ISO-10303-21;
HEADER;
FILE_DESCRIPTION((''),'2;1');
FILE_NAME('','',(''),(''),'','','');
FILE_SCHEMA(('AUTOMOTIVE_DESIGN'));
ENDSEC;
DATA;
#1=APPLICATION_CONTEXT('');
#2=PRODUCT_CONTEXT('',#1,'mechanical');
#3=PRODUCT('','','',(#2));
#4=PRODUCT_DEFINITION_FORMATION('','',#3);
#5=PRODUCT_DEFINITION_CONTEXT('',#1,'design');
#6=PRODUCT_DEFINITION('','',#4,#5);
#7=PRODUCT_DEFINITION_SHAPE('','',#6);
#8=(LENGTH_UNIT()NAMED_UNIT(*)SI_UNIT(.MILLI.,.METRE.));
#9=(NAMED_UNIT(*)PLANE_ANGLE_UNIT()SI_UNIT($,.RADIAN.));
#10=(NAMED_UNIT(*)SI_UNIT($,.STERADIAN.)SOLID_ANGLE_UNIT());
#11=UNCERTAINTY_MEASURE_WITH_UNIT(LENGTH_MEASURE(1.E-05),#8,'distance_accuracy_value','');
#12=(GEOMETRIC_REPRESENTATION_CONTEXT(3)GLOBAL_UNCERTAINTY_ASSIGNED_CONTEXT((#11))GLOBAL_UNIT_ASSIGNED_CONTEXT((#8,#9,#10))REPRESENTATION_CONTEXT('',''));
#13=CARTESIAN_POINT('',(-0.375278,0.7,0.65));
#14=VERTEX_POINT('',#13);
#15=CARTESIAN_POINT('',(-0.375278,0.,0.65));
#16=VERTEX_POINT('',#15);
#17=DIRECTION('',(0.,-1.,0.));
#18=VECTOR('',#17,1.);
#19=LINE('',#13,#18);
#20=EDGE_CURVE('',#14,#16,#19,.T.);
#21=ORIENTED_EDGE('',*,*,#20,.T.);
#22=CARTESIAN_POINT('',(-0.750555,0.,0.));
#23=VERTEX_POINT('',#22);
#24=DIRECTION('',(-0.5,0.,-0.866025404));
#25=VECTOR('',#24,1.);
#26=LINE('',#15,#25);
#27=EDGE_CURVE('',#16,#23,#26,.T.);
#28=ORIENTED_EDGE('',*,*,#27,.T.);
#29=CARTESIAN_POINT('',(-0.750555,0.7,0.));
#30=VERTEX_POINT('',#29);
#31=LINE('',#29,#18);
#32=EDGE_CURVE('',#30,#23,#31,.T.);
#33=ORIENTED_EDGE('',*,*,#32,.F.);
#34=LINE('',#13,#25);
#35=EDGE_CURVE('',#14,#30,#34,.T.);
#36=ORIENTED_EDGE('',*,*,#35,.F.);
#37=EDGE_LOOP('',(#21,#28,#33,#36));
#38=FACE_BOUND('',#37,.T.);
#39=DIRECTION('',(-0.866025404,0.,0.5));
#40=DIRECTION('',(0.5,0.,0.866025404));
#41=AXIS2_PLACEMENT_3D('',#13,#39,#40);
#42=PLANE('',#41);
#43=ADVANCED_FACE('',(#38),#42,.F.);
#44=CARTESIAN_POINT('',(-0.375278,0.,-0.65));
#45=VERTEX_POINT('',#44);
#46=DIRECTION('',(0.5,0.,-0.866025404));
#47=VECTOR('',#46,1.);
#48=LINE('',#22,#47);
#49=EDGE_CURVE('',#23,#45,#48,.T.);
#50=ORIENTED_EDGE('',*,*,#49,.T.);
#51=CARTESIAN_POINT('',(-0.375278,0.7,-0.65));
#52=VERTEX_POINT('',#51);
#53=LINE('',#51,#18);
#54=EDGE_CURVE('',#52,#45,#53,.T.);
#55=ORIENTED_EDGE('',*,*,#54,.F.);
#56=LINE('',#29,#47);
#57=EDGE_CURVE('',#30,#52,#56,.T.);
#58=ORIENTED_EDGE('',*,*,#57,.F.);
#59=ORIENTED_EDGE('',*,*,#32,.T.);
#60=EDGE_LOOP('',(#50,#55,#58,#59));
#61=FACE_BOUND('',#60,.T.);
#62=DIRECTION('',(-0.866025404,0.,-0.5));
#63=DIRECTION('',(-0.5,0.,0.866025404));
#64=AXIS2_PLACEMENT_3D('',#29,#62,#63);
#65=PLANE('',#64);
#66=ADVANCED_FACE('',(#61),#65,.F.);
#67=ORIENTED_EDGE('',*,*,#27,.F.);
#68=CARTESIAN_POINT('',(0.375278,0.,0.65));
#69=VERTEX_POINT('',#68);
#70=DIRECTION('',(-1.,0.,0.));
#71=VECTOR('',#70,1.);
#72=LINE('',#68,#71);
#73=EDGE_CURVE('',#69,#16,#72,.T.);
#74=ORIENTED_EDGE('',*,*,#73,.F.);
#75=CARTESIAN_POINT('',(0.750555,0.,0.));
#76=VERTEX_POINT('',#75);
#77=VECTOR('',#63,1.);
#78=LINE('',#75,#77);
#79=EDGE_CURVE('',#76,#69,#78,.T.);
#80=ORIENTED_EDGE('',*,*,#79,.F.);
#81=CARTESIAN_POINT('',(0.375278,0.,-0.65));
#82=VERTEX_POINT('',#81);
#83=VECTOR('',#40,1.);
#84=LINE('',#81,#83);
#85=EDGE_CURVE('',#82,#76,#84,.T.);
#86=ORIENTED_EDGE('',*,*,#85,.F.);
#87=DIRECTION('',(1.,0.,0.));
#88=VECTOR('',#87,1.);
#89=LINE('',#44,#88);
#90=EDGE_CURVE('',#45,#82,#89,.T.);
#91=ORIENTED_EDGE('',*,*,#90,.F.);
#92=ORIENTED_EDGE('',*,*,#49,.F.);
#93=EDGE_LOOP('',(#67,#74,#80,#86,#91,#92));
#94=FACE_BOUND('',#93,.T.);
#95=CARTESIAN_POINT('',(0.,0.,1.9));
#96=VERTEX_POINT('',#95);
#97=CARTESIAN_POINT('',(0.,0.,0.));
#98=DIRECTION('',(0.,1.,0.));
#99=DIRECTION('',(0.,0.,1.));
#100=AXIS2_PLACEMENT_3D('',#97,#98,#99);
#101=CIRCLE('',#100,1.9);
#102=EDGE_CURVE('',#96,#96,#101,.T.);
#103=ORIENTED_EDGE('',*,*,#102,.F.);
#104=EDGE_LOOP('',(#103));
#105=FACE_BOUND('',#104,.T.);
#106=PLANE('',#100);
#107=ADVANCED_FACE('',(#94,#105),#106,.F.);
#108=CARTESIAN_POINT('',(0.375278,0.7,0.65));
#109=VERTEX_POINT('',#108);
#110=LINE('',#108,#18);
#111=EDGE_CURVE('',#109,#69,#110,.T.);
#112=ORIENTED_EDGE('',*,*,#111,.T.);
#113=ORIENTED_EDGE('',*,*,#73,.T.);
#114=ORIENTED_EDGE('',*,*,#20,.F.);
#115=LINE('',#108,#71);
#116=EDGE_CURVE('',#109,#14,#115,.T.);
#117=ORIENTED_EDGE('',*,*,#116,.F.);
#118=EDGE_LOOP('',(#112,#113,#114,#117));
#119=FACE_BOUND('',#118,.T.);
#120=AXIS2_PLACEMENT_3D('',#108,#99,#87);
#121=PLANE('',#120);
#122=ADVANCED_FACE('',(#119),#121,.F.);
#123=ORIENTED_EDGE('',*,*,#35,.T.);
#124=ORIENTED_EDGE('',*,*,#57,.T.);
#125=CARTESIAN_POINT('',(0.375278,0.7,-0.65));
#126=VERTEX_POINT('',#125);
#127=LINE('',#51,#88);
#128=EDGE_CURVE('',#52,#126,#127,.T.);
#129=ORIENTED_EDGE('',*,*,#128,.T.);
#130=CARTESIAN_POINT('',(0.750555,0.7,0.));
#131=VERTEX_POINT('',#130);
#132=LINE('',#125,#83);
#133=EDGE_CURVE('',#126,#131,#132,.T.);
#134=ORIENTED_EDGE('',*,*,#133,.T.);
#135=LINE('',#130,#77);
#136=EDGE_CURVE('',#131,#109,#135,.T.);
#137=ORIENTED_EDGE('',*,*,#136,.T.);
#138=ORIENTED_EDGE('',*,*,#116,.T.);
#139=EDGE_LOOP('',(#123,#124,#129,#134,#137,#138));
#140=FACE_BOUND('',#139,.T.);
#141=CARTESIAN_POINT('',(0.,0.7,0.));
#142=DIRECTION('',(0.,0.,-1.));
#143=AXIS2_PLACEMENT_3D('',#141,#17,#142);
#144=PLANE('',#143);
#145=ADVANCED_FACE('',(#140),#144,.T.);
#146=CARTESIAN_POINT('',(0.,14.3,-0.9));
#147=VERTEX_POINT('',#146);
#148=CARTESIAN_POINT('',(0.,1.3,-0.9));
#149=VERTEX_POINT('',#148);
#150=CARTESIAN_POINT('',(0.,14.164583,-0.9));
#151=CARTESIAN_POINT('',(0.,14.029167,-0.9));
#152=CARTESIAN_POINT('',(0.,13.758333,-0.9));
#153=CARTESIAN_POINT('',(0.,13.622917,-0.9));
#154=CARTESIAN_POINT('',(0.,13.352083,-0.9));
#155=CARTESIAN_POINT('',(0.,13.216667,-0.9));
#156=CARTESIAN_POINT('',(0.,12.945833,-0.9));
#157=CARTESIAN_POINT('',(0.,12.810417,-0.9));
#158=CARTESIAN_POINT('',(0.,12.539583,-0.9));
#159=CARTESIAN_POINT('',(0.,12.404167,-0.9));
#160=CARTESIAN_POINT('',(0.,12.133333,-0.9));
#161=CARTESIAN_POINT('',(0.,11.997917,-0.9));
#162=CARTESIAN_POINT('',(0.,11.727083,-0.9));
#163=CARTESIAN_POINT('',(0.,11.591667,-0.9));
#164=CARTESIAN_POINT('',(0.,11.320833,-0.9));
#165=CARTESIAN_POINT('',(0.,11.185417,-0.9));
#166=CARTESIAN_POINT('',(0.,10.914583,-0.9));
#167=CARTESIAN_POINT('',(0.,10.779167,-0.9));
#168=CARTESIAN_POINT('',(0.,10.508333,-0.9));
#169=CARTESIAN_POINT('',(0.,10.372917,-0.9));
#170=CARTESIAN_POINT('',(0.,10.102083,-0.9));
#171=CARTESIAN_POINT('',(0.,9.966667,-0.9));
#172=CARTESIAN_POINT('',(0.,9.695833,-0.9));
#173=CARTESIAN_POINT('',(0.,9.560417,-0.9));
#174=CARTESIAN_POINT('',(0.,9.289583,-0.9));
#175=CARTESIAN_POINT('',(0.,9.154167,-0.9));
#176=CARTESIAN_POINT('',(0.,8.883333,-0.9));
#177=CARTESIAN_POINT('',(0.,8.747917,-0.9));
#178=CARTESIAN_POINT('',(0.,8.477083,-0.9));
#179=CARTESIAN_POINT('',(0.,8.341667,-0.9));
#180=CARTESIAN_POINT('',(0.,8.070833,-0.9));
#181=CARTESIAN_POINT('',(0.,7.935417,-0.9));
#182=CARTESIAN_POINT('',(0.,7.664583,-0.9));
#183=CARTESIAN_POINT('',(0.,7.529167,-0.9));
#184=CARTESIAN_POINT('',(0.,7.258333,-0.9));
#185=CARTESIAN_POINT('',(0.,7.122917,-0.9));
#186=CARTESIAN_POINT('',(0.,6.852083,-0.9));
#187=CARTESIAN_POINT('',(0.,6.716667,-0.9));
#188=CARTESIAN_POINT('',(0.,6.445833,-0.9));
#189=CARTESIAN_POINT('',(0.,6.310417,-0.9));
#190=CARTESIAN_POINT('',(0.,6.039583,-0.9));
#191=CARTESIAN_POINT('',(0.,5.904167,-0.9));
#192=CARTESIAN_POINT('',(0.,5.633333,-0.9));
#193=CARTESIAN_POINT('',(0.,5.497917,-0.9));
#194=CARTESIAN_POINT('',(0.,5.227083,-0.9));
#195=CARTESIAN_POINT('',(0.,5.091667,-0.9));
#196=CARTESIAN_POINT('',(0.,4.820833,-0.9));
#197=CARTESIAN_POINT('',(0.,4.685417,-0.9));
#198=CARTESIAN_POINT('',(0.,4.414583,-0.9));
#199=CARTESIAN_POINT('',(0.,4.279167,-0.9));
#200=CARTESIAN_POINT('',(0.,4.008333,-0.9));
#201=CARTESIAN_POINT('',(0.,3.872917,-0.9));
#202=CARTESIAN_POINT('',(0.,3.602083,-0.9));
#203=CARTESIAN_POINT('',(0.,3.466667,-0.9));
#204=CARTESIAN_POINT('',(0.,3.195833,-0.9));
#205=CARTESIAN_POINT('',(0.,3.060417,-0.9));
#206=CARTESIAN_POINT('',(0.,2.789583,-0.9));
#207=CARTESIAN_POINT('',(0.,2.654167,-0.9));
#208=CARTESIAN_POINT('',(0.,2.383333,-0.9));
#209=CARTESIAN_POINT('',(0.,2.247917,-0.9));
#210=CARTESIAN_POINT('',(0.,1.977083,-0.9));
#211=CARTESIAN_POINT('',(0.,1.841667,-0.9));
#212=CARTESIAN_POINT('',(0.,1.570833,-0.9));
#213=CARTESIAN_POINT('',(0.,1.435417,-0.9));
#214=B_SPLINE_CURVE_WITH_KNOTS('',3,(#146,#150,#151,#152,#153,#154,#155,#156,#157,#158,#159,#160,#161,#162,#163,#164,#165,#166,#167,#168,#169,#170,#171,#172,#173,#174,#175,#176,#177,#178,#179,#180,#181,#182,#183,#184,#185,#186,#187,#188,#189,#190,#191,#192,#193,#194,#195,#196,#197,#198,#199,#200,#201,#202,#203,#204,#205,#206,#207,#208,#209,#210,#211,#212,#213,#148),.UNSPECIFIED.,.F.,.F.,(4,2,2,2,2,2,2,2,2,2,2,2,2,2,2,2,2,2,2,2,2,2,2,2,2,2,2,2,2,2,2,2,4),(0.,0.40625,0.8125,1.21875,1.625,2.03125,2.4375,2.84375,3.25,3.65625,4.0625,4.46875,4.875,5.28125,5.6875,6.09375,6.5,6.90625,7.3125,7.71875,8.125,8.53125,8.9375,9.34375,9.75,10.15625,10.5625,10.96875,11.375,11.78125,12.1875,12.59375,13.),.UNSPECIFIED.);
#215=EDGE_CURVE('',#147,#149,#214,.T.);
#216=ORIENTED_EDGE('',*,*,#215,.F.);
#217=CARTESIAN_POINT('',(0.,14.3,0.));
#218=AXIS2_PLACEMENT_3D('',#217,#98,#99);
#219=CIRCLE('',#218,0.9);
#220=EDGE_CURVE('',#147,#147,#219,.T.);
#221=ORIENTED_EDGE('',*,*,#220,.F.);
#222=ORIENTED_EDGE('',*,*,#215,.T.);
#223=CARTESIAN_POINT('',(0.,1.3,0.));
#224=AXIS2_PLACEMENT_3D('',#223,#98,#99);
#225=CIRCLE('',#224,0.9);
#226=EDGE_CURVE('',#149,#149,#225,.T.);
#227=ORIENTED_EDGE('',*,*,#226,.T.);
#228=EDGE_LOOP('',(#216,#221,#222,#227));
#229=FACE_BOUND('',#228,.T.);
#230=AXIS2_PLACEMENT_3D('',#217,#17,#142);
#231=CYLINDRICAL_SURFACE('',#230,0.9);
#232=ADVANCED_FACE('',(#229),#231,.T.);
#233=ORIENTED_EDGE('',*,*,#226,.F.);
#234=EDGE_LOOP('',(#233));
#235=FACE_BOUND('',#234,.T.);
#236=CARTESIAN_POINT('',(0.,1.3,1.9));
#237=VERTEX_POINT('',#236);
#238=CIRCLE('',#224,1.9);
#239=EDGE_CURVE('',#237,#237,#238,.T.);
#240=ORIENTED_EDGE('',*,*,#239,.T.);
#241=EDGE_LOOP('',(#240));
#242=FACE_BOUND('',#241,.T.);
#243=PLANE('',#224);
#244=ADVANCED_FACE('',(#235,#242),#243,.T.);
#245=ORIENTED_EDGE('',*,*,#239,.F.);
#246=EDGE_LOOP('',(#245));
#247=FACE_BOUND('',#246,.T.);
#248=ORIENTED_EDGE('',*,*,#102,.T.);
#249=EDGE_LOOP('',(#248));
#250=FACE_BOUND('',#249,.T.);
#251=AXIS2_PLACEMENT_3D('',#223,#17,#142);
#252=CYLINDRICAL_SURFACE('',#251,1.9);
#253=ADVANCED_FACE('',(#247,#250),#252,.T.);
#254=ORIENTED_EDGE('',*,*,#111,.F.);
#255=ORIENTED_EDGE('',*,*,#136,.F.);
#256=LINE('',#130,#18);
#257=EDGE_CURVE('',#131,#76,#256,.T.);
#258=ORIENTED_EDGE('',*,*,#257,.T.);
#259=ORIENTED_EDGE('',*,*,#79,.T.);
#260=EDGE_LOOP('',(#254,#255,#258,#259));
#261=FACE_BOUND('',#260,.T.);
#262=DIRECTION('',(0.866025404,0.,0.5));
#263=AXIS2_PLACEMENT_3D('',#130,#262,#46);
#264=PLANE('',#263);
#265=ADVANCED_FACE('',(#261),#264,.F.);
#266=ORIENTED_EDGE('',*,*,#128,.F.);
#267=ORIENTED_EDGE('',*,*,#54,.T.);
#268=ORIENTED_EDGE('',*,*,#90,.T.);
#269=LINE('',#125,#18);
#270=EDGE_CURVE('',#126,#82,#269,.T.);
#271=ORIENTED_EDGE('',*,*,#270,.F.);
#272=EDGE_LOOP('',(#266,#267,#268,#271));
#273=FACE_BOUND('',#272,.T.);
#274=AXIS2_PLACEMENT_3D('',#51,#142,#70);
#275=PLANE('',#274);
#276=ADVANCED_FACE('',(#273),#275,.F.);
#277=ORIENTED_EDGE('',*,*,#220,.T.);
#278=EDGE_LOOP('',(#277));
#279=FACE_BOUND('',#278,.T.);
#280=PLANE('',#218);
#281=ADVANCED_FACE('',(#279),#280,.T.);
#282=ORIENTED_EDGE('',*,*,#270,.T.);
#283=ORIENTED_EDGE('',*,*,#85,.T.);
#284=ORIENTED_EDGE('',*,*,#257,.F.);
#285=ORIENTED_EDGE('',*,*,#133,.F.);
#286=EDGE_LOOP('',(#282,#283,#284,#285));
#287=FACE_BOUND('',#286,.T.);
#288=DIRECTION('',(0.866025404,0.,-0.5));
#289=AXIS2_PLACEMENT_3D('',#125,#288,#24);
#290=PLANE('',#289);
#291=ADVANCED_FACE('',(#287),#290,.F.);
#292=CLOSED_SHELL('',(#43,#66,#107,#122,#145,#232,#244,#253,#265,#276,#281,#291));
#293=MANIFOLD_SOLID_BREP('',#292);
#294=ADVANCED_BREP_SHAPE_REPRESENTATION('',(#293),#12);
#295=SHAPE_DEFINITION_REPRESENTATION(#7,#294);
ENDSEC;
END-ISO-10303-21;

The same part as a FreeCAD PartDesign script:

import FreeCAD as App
import Part
import Sketcher
from FreeCAD import Vector
Q = App.Units.Quantity

doc = App.newDocument("Part")
body = doc.addObject("PartDesign::Body", "Body")

# Sketch on XZ plane
sketch1 = body.newObject("Sketcher::SketchObject", "Sketch")
sketch1.AttachmentSupport = (doc.getObject("XZ_Plane"), [""])
sketch1.MapMode = "FlatFace"
sketch1.addGeometry(Part.Circle(Vector(0, 0, 0), Vector(0, 0, 1), 1.9), False)
sketch1.addConstraint(Sketcher.Constraint("Coincident", 0, 3, -1, 1))
sketch1.addConstraint(Sketcher.Constraint("Diameter", 0, 3.8))
pad1 = body.newObject("PartDesign::Pad", "Pad")
pad1.Profile = sketch1
pad1.Length = 1.3
pad1.Reversed = True

# Sketch on XZ plane
sketch2 = body.newObject("Sketcher::SketchObject", "Sketch001")
sketch2.AttachmentSupport = (doc.getObject("XZ_Plane"), [""])
sketch2.MapMode = "FlatFace"
sketch2.AttachmentOffset = App.Placement(Vector(0, 0, -1.3), App.Rotation())
sketch2.addGeometry(Part.Circle(Vector(0, 0, 0), Vector(0, 0, 1), 0.9), False)
sketch2.addConstraint(Sketcher.Constraint("Coincident", 0, 3, -1, 1))
sketch2.addConstraint(Sketcher.Constraint("Diameter", 0, 1.8))
pad2 = body.newObject("PartDesign::Pad", "Pad001")
pad2.Profile = sketch2
pad2.Length = 13
pad2.Reversed = True

# Sketch on XZ plane
sketch3 = body.newObject("Sketcher::SketchObject", "Sketch002")
sketch3.AttachmentSupport = (doc.getObject("XZ_Plane"), [""])
sketch3.MapMode = "FlatFace"
sketch3.addGeometry(Part.LineSegment(Vector(0.8, 0, 0), Vector(0.4, 0.7, 0)), False)
sketch3.addGeometry(Part.LineSegment(Vector(0.4, 0.7, 0), Vector(-0.4, 0.7, 0)), False)
sketch3.addGeometry(Part.LineSegment(Vector(-0.4, 0.7, 0), Vector(-0.8, 0, 0)), False)
sketch3.addGeometry(Part.LineSegment(Vector(-0.8, 0, 0), Vector(-0.4, -0.7, 0)), False)
sketch3.addGeometry(Part.LineSegment(Vector(-0.4, -0.7, 0), Vector(0.4, -0.7, 0)), False)
sketch3.addGeometry(Part.LineSegment(Vector(0.4, -0.7, 0), Vector(0.8, 0, 0)), False)
sketch3.addConstraint(Sketcher.Constraint("Coincident", 0, 2, 1, 1))
sketch3.addConstraint(Sketcher.Constraint("Coincident", 1, 2, 2, 1))
sketch3.addConstraint(Sketcher.Constraint("Coincident", 2, 2, 3, 1))
sketch3.addConstraint(Sketcher.Constraint("Coincident", 3, 2, 4, 1))
sketch3.addConstraint(Sketcher.Constraint("Coincident", 4, 2, 5, 1))
sketch3.addConstraint(Sketcher.Constraint("Coincident", 5, 2, 0, 1))
sketch3.addConstraint(Sketcher.Constraint("Horizontal", 1))
sketch3.addConstraint(Sketcher.Constraint("Horizontal", 4))
sketch3.addConstraint(Sketcher.Constraint("Symmetric", 0, 2, 3, 2, -1, 1))
sketch3.addConstraint(Sketcher.Constraint("Symmetric", 2, 2, 5, 2, -1, 1))
sketch3.addConstraint(Sketcher.Constraint("PointOnObject", 2, 2, -1))
sketch3.addConstraint(Sketcher.Constraint("Parallel", 2, 5))
sketch3.addConstraint(Sketcher.Constraint("Vertical", 1, 2, 3, 2))
sketch3.addConstraint(Sketcher.Constraint("Angle", 0, Q("120 deg")))
sketch3.addConstraint(Sketcher.Constraint("DistanceY", 3, 2, 1, 2, 1.3))
sketch3.addConstraint(Sketcher.Constraint("DistanceX", 1, 2, 1, 1, 0.750555))
pocket1 = body.newObject("PartDesign::Pocket", "Pocket")
pocket1.Profile = sketch3
pocket1.Length = 0.7

doc.recompute()
